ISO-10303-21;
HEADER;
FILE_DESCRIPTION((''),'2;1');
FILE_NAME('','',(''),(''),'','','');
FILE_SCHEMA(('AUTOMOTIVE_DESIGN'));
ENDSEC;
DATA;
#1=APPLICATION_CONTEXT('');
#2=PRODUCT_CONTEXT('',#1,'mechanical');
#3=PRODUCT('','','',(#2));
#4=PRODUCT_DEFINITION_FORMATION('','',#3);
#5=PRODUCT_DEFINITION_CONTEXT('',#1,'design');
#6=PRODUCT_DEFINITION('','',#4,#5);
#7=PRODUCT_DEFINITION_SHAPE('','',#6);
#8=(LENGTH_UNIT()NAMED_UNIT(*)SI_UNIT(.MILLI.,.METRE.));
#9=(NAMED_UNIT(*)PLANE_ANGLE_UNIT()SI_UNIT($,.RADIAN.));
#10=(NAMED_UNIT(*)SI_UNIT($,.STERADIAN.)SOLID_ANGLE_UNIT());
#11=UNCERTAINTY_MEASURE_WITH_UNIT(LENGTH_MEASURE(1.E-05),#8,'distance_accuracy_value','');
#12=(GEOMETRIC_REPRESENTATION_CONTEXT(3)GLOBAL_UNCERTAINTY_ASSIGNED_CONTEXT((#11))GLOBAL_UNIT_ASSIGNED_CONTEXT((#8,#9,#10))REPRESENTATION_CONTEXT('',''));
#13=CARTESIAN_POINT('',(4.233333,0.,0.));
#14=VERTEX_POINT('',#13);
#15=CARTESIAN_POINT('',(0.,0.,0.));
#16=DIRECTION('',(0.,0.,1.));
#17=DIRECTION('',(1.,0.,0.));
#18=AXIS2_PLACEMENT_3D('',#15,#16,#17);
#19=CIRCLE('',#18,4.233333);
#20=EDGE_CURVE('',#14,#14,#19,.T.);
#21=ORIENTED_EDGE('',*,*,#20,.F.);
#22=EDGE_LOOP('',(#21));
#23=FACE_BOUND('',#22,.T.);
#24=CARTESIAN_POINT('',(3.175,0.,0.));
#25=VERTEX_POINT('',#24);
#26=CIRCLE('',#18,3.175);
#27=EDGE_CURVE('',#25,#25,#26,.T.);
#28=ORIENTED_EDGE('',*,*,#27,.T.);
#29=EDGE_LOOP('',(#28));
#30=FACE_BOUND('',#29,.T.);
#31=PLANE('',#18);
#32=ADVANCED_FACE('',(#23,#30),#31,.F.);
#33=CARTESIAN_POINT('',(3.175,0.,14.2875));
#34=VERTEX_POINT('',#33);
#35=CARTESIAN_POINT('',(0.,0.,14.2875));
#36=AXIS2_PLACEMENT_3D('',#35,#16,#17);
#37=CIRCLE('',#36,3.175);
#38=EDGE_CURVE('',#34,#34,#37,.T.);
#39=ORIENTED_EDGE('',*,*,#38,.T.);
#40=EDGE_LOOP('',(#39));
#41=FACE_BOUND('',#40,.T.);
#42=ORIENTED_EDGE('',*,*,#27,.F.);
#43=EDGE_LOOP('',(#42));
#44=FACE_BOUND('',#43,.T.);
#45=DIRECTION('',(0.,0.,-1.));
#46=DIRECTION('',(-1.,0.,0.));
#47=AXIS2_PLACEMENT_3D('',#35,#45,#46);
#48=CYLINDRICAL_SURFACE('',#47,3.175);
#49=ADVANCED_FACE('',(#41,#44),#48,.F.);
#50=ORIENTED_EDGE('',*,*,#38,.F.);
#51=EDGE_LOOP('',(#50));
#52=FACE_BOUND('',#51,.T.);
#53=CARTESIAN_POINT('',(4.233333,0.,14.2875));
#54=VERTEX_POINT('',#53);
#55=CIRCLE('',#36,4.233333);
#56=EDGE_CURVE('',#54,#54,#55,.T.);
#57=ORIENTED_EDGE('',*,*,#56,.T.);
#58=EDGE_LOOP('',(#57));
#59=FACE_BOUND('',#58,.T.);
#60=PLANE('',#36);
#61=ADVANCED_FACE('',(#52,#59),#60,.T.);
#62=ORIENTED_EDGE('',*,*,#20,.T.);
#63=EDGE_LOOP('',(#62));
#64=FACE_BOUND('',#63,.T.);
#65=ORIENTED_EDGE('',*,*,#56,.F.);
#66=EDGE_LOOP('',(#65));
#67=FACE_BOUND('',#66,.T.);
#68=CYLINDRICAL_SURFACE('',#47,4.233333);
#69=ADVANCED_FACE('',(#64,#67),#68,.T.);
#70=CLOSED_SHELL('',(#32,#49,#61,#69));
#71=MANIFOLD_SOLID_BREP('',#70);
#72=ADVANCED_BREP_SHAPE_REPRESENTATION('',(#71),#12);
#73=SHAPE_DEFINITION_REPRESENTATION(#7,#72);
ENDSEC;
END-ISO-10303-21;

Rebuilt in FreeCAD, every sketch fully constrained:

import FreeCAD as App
import Part
import Sketcher
Q = App.Units.Quantity

doc = App.newDocument("Part")
body = doc.addObject("PartDesign::Body", "Body")

# Sketch on XY plane
sketch1 = doc.addObject("Sketcher::SketchObject", "Sketch")
body.addObject(sketch1)
sketch1.AttachmentSupport = (doc.XY_Plane, [""])
sketch1.MapMode = "FlatFace"
sketch1.addGeometry(Part.Circle(App.Vector(0, 0, 0), App.Vector(0, 0, 1), 4.2), False)
sketch1.addGeometry(Part.Circle(App.Vector(0, 0, 0), App.Vector(0, 0, 1), 3.2), False)
sketch1.addConstraint(Sketcher.Constraint("Coincident", 0, 3, -1, 1))
sketch1.addConstraint(Sketcher.Constraint("Coincident", 1, 3, -1, 1))
sketch1.addConstraint(Sketcher.Constraint("Diameter", 1, Q("0.25 in")))
sketch1.addConstraint(Sketcher.Constraint("Diameter", 0, Q("8.466667 mm")))
pad1 = doc.addObject("PartDesign::Pad", "Pad")
body.addObject(pad1)
pad1.Profile = sketch1
pad1.Length = Q("0.5625 in")

doc.recompute()
